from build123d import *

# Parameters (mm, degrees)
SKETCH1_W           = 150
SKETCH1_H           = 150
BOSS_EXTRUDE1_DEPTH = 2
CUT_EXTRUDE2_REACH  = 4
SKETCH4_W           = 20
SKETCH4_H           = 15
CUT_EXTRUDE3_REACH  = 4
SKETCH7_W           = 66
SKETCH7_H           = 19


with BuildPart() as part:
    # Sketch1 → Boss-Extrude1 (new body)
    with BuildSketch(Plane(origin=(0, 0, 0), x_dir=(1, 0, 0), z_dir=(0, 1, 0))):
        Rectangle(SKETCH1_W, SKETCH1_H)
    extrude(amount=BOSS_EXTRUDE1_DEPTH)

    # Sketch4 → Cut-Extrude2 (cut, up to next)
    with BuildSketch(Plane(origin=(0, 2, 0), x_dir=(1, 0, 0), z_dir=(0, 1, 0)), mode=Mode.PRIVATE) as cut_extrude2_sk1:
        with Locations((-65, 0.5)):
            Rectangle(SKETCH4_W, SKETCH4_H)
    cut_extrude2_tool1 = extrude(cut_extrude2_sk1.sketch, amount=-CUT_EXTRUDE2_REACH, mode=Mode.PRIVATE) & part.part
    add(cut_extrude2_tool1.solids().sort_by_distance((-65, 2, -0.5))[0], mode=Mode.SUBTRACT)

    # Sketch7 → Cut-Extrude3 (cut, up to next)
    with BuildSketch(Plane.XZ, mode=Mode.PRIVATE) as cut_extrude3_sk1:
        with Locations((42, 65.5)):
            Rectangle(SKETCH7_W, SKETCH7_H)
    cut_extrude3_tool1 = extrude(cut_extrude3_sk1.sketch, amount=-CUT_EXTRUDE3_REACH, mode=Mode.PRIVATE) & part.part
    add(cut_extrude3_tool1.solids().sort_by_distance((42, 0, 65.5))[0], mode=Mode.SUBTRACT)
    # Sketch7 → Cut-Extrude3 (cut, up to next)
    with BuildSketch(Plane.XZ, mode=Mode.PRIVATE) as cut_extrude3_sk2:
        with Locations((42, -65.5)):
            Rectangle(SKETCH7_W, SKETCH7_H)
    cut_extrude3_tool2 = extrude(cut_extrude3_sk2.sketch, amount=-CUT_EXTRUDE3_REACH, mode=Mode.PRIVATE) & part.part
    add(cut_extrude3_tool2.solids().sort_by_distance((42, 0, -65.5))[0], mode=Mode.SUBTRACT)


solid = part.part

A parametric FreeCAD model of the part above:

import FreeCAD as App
import Part
import Sketcher
from FreeCAD import Vector
Q = App.Units.Quantity


def add_polygon(sketch, points):
    """Adds a closed chain of lines whose ends are joined by coincident constraints."""
    first, n = sketch.GeometryCount, len(points)
    for a, b in zip(points, points[1:] + points[:1]):
        sketch.addGeometry(Part.LineSegment(App.Vector(*a, 0), App.Vector(*b, 0)), False)
    for i in range(n):
        sketch.addConstraint(Sketcher.Constraint("Coincident", first + i, 2, first + (i + 1) % n, 1))

doc = App.newDocument("Part")
body = doc.addObject("PartDesign::Body", "Body")

sketch1 = doc.addObject("Sketcher::SketchObject", "Sketch")
body.addObject(sketch1)
sketch1.AttachmentSupport = (doc.XZ_Plane, [""])
sketch1.MapMode = "FlatFace"
add_polygon(sketch1, [(-75, -75), (-75, 75), (75, 75), (75, -75)])
sketch1.addConstraint(Sketcher.Constraint("Vertical", 0))
sketch1.addConstraint(Sketcher.Constraint("Horizontal", 1))
sketch1.addConstraint(Sketcher.Constraint("Vertical", 2))
sketch1.addConstraint(Sketcher.Constraint("Horizontal", 3))
sketch1.addConstraint(Sketcher.Constraint("Symmetric", 0, 2, 2, 2, -1, 1))
sketch1.addConstraint(Sketcher.Constraint("Equal", 3, 0))
sketch1.addConstraint(Sketcher.Constraint("DistanceX", 1, 1, 1, 2, Q("150 mm")))
pad1 = doc.addObject("PartDesign::Pad", "Pad")
body.addObject(pad1)
pad1.Profile = sketch1
pad1.Length = 2
pad1.Reversed = True

sketch2 = doc.addObject("Sketcher::SketchObject", "Sketch001")
body.addObject(sketch2)
sketch2.AttachmentSupport = (doc.XZ_Plane, [""])
sketch2.MapMode = "FlatFace"
sketch2.AttachmentOffset = App.Placement(Vector(0, 0, -2), App.Rotation())
add_polygon(sketch2, [(-75, -8), (-75, 7), (-55, 7), (-55, -8)])
sketch2.addConstraint(Sketcher.Constraint("Vertical", 0))
sketch2.addConstraint(Sketcher.Constraint("Horizontal", 1))
sketch2.addConstraint(Sketcher.Constraint("Vertical", 2))
sketch2.addConstraint(Sketcher.Constraint("Horizontal", 3))
sketch2.addConstraint(Sketcher.Constraint("DistanceX", 1, 1, 1, 2, Q("20 mm")))
sketch2.addConstraint(Sketcher.Constraint("DistanceY", 0, 1, 0, 2, Q("15 mm")))
sketch2.addConstraint(Sketcher.Constraint("DistanceX", 0, 2, -1, 1, Q("75 mm")))
sketch2.addConstraint(Sketcher.Constraint("DistanceY", -1, 1, 0, 2, Q("7 mm")))
pocket1 = doc.addObject("PartDesign::Pocket", "Pocket")
body.addObject(pocket1)
pocket1.Profile = sketch2
pocket1.Type = "UpToFirst"
pocket1.Reversed = True

sketch3 = doc.addObject("Sketcher::SketchObject", "Sketch002")
body.addObject(sketch3)
sketch3.AttachmentSupport = (doc.XZ_Plane, [""])
sketch3.MapMode = "FlatFace"
add_polygon(sketch3, [(9, 75), (9, 56), (75, 56), (75, 75)])
sketch3.addConstraint(Sketcher.Constraint("Vertical", 0))
sketch3.addConstraint(Sketcher.Constraint("Horizontal", 1))
sketch3.addConstraint(Sketcher.Constraint("Vertical", 2))
sketch3.addConstraint(Sketcher.Constraint("Horizontal", 3))
sketch3.addConstraint(Sketcher.Constraint("DistanceX", 1, 1, 1, 2, Q("66 mm")))
sketch3.addConstraint(Sketcher.Constraint("DistanceY", 0, 2, 0, 1, Q("19 mm")))
sketch3.addConstraint(Sketcher.Constraint("DistanceX", -1, 1, 0, 2, Q("9 mm")))
sketch3.addConstraint(Sketcher.Constraint("DistanceY", -1, 1, 0, 2, Q("56 mm")))
pocket2 = doc.addObject("PartDesign::Pocket", "Pocket001")
body.addObject(pocket2)
pocket2.Profile = sketch3
pocket2.Type = "UpToFirst"

sketch4 = doc.addObject("Sketcher::SketchObject", "Sketch003")
body.addObject(sketch4)
sketch4.AttachmentSupport = (doc.XZ_Plane, [""])
sketch4.MapMode = "FlatFace"
add_polygon(sketch4, [(9, -56), (9, -75), (75, -75), (75, -56)])
sketch4.addConstraint(Sketcher.Constraint("Vertical", 0))
sketch4.addConstraint(Sketcher.Constraint("Horizontal", 1))
sketch4.addConstraint(Sketcher.Constraint("Vertical", 2))
sketch4.addConstraint(Sketcher.Constraint("Horizontal", 3))
sketch4.addConstraint(Sketcher.Constraint("DistanceX", 1, 1, 1, 2, Q("66 mm")))
sketch4.addConstraint(Sketcher.Constraint("DistanceY", 0, 2, 0, 1, Q("19 mm")))
sketch4.addConstraint(Sketcher.Constraint("DistanceX", -1, 1, 0, 2, Q("9 mm")))
sketch4.addConstraint(Sketcher.Constraint("DistanceY", 0, 2, -1, 1, Q("75 mm")))
pocket3 = doc.addObject("PartDesign::Pocket", "Pocket002")
body.addObject(pocket3)
pocket3.Profile = sketch4
pocket3.Type = "UpToFirst"

doc.recompute()
